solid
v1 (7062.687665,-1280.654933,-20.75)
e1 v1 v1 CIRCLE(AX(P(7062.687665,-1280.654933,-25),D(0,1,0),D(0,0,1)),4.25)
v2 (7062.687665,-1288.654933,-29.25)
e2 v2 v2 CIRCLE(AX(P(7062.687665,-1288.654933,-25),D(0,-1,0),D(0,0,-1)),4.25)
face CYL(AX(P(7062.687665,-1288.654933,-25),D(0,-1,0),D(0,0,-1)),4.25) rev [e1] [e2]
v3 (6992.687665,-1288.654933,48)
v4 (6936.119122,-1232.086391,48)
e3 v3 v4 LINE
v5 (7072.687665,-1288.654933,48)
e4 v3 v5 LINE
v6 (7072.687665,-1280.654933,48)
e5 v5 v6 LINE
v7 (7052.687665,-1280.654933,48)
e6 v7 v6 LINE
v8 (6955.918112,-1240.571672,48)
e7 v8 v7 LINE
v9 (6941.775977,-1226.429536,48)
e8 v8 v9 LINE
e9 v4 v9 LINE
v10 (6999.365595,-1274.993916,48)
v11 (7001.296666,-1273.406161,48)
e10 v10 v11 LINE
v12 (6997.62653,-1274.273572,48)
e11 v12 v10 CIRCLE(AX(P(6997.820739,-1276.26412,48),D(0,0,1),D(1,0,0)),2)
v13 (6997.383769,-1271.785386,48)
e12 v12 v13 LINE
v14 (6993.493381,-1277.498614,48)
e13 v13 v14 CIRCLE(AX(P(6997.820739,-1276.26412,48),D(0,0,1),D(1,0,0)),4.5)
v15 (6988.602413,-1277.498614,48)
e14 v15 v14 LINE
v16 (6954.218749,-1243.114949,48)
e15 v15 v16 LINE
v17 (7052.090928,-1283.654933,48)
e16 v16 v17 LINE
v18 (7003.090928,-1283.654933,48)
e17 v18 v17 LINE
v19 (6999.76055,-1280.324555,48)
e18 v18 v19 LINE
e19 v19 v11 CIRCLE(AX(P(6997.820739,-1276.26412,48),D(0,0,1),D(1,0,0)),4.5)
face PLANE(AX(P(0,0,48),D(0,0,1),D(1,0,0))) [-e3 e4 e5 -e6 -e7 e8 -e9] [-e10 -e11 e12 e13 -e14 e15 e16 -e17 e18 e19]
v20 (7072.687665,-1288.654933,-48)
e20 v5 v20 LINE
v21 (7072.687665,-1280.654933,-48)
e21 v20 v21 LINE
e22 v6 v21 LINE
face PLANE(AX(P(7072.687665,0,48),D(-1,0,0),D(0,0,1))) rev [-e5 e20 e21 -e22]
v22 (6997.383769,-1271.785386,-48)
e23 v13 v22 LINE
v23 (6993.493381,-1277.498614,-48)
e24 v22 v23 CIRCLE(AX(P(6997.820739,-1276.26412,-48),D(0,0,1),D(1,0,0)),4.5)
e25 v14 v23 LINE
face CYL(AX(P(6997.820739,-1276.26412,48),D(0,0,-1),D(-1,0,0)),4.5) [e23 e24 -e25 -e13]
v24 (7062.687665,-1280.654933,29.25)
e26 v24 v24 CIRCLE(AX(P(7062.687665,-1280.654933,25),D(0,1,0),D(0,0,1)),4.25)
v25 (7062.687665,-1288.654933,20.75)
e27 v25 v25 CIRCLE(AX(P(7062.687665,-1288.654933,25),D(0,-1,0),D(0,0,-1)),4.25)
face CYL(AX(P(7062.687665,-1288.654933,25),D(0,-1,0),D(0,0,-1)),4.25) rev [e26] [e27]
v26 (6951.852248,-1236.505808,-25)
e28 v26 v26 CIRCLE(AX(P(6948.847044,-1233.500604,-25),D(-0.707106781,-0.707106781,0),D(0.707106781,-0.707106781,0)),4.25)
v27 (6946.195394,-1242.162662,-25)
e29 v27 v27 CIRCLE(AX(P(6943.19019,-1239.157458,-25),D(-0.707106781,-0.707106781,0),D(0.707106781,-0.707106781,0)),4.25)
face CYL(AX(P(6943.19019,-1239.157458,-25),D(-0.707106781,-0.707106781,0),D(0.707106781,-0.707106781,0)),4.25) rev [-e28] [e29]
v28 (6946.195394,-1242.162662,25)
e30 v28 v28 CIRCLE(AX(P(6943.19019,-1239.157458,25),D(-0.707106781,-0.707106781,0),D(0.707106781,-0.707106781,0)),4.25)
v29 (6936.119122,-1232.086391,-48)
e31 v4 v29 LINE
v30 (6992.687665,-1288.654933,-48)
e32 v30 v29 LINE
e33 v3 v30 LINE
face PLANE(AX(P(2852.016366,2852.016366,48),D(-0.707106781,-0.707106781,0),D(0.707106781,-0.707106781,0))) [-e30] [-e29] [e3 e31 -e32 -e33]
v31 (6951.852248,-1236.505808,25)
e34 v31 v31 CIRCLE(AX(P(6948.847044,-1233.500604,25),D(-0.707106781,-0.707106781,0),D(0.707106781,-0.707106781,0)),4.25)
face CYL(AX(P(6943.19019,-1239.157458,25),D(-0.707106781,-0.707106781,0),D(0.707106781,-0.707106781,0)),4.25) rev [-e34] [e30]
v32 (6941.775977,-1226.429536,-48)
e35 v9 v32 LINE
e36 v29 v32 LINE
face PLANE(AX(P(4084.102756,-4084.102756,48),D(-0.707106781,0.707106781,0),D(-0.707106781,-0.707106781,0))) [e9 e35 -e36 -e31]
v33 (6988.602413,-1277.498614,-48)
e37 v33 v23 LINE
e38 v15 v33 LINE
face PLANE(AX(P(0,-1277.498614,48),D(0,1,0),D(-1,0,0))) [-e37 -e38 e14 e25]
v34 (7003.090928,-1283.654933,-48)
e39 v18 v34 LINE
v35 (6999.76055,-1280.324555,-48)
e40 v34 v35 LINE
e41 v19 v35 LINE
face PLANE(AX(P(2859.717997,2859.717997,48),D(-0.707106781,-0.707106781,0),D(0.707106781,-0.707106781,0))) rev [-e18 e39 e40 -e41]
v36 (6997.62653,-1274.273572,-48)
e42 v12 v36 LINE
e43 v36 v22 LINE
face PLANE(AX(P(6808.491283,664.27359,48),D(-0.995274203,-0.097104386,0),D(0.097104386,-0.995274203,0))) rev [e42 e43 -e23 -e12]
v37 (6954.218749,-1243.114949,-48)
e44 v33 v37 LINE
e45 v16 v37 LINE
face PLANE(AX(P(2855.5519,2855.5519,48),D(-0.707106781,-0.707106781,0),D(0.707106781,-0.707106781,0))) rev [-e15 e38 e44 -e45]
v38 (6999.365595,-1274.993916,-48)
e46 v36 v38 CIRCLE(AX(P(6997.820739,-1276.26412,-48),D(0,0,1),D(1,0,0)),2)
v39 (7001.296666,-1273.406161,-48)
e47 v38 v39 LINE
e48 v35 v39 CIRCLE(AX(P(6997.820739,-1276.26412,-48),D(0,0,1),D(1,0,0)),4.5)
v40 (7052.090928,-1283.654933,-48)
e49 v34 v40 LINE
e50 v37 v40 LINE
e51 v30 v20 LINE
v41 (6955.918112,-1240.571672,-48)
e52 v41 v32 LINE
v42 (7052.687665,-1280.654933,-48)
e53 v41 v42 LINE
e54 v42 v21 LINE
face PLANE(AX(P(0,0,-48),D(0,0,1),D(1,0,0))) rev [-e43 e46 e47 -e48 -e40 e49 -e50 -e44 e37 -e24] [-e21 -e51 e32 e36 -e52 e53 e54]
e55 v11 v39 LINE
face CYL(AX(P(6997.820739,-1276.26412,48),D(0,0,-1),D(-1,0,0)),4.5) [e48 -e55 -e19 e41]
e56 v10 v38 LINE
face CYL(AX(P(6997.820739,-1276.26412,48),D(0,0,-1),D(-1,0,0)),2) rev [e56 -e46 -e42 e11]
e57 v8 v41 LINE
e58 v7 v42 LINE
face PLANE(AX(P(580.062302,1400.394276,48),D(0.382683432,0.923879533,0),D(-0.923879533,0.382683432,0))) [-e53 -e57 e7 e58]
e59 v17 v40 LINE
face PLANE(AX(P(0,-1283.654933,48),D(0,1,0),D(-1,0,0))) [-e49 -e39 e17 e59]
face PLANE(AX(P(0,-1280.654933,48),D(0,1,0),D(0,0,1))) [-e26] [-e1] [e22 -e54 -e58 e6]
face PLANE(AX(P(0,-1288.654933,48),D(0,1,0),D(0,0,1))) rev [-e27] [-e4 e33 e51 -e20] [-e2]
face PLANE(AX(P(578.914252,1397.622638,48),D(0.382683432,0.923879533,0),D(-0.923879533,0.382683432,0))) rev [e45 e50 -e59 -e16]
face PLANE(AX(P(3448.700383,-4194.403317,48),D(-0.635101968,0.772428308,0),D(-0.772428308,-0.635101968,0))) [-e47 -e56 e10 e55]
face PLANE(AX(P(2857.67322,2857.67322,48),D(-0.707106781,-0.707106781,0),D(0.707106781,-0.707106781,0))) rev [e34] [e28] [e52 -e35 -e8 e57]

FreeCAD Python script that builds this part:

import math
import FreeCAD as App
import Part
import Sketcher

V = App.Vector
Q = App.Units.Quantity


def add_polygon(sketch, points):
    """Adds a closed chain of lines whose ends are joined by coincident constraints."""
    first, n = sketch.GeometryCount, len(points)
    for a, b in zip(points, points[1:] + points[:1]):
        sketch.addGeometry(Part.LineSegment(App.Vector(*a, 0), App.Vector(*b, 0)), False)
    for i in range(n):
        sketch.addConstraint(Sketcher.Constraint("Coincident", first + i, 2, first + (i + 1) % n, 1))

doc = App.newDocument("Part")
body = doc.addObject("PartDesign::Body", "Body")

# Sketch on XY plane
sketch1 = body.newObject("Sketcher::SketchObject", "Sketch")
sketch1.AttachmentSupport = (doc.getObject("XY_Plane"), [""])
sketch1.MapMode = "FlatFace"
add_polygon(sketch1, [(6936.119122, -1232.086391), (6992.687665, -1288.654933), (7072.687665, -1288.654933), (7072.687665, -1280.654933), (7052.687665, -1280.654933), (6955.918112, -1240.571672), (6941.775977, -1226.429536)])  # lines 0-6
sketch1.addGeometry(Part.LineSegment(V(7052.090928, -1283.654933, 0), V(7003.090928, -1283.654933, 0)), False)  # 7
sketch1.addGeometry(Part.LineSegment(V(7003.090928, -1283.654933, 0), V(6999.76055, -1280.324555, 0)), False)  # 8
sketch1.addGeometry(Part.ArcOfCircle(Part.Circle(V(6997.820739, -1276.26412, 0), V(0, 0, 1), 4.5), math.radians(-64.464573), math.radians(39.427548)), False)  # 9
sketch1.addGeometry(Part.LineSegment(V(7001.296666, -1273.406161, 0), V(6999.365595, -1274.993916, 0)), False)  # 10
sketch1.addGeometry(Part.ArcOfCircle(Part.Circle(V(6997.820739, -1276.26412, 0), V(0, 0, 1), 2), math.radians(95.572452), math.radians(399.427548)), False)  # 11
sketch1.addGeometry(Part.LineSegment(V(6997.62653, -1274.273572, 0), V(6997.383769, -1271.785386, 0)), False)  # 12
sketch1.addGeometry(Part.ArcOfCircle(Part.Circle(V(6997.820739, -1276.26412, 0), V(0, 0, 1), 4.5), math.radians(95.572452), math.radians(195.922205)), False)  # 13
sketch1.addGeometry(Part.LineSegment(V(6993.493381, -1277.498614, 0), V(6988.602413, -1277.498614, 0)), False)  # 14
sketch1.addGeometry(Part.LineSegment(V(6988.602413, -1277.498614, 0), V(6954.218749, -1243.114949, 0)), False)  # 15
sketch1.addGeometry(Part.LineSegment(V(6954.218749, -1243.114949, 0), V(7052.090928, -1283.654933, 0)), False)  # 16
sketch1.addConstraint(Sketcher.Constraint("Coincident", 7, 2, 8, 1))
sketch1.addConstraint(Sketcher.Constraint("Coincident", 8, 2, 9, 1))
sketch1.addConstraint(Sketcher.Constraint("Coincident", 9, 2, 10, 1))
sketch1.addConstraint(Sketcher.Constraint("Coincident", 10, 2, 11, 2))
sketch1.addConstraint(Sketcher.Constraint("Coincident", 11, 1, 12, 1))
sketch1.addConstraint(Sketcher.Constraint("Coincident", 12, 2, 13, 1))
sketch1.addConstraint(Sketcher.Constraint("Coincident", 13, 2, 14, 1))
sketch1.addConstraint(Sketcher.Constraint("Coincident", 14, 2, 15, 1))
sketch1.addConstraint(Sketcher.Constraint("Coincident", 15, 2, 16, 1))
sketch1.addConstraint(Sketcher.Constraint("Coincident", 16, 2, 7, 1))
sketch1.addConstraint(Sketcher.Constraint("Horizontal", 1))
sketch1.addConstraint(Sketcher.Constraint("Vertical", 2))
sketch1.addConstraint(Sketcher.Constraint("Horizontal", 3))
sketch1.addConstraint(Sketcher.Constraint("Horizontal", 7))
sketch1.addConstraint(Sketcher.Constraint("Horizontal", 14))
sketch1.addConstraint(Sketcher.Constraint("Coincident", 11, 3, 9, 3))
sketch1.addConstraint(Sketcher.Constraint("Coincident", 13, 3, 9, 3))
sketch1.addConstraint(Sketcher.Constraint("Equal", 9, 13))
sketch1.addConstraint(Sketcher.Constraint("Parallel", 0, 5))
sketch1.addConstraint(Sketcher.Constraint("Perpendicular", 5, 6))
sketch1.addConstraint(Sketcher.Constraint("Perpendicular", 6, 8))
sketch1.addConstraint(Sketcher.Constraint("Parallel", 8, 15))
sketch1.addConstraint(Sketcher.Constraint("Parallel", 4, 16))
sketch1.addConstraint(Sketcher.Constraint("Radius", 11, Q("2 mm")))
sketch1.addConstraint(Sketcher.Constraint("Radius", 9, Q("4.5 mm")))
sketch1.addConstraint(Sketcher.Constraint("DistanceX", 1, 1, 1, 2, Q("80 mm")))
sketch1.addConstraint(Sketcher.Constraint("DistanceX", 3, 2, 3, 1, Q("20 mm")))
sketch1.addConstraint(Sketcher.Constraint("DistanceX", 7, 2, 7, 1, Q("49 mm")))
sketch1.addConstraint(Sketcher.Constraint("DistanceY", 2, 1, 2, 2, Q("8 mm")))
sketch1.addConstraint(Sketcher.Constraint("Angle", 0, Q("-45 deg")))
sketch1.addConstraint(Sketcher.Constraint("Distance", 0, Q("80 mm")))
sketch1.addConstraint(Sketcher.Constraint("Distance", 5, Q("20 mm")))
sketch1.addConstraint(Sketcher.Constraint("Distance", 6, Q("8 mm")))
sketch1.addConstraint(Sketcher.Constraint("DistanceY", 0, 2, 7, 2, Q("5 mm")))
sketch1.addConstraint(Sketcher.Constraint("DistanceX", 14, 2, 14, 1, Q("4.890968 mm")))
sketch1.addConstraint(Sketcher.Constraint("DistanceX", -1, 1, 9, 3, Q("6997.820739 mm")))
sketch1.addConstraint(Sketcher.Constraint("DistanceY", 9, 3, -1, 1, Q("1276.26412 mm")))
sketch1.addConstraint(Sketcher.Constraint("DistanceY", 6, 2, -1, 1, Q("1232.086391 mm")))
sketch1.addConstraint(Sketcher.Constraint("DistanceX", -1, 1, 8, 2, Q("6999.76055 mm")))
sketch1.addConstraint(Sketcher.Constraint("DistanceY", 9, 2, -1, 1, Q("1273.406161 mm")))
sketch1.addConstraint(Sketcher.Constraint("DistanceX", -1, 1, 11, 1, Q("6997.62653 mm")))
sketch1.addConstraint(Sketcher.Constraint("DistanceX", -1, 1, 12, 2, Q("6997.383769 mm")))
sketch1.addConstraint(Sketcher.Constraint("DistanceX", -1, 1, 13, 2, Q("6993.493381 mm")))
sketch1.addConstraint(Sketcher.Constraint("DistanceX", 10, 2, 9, 2, Q("1.931071 mm")))
sketch1.addConstraint(Sketcher.Constraint("DistanceX", -1, 1, 0, 2, Q("6992.687665 mm")))
pad1 = body.newObject("PartDesign::Pad", "Pad")
pad1.Profile = sketch1
pad1.Length = 96
pad1.Midplane = True

# Sketch on an angled plane
sketch2 = body.newObject("Sketcher::SketchObject", "Sketch001")
sketch2.Placement = App.Placement(V(2852.016366, 2852.016366, 0), App.Rotation(V(0.707106781, -0.707106781, 0), V(0, 0, 0.999999999), V(-0.707106781, -0.707106781, 0), "ZXY"))
sketch2.addGeometry(Part.Circle(V(5785.8, -25, 0), V(0, 0, 1), 4.2), False)
sketch2.addGeometry(Part.Circle(V(5785.8, 25, 0), V(0, 0, 1), 4.2), False)
sketch2.addConstraint(Sketcher.Constraint("Equal", 0, 1))
sketch2.addConstraint(Sketcher.Constraint("Symmetric", 0, 3, 1, 3, -1))
sketch2.addConstraint(Sketcher.Constraint("Diameter", 0, Q("8.5 mm")))
sketch2.addConstraint(Sketcher.Constraint("DistanceY", 0, 3, -1, 1, Q("25 mm")))
sketch2.addConstraint(Sketcher.Constraint("DistanceX", -1, 1, 0, 3, Q("5785.793505 mm")))
doc.recompute()
hole = body.newObject("PartDesign::Hole", "Hole")
hole.Profile = sketch2
hole.ThreadType = "None"
hole.Diameter = 8.5
hole.DepthType = "ThroughAll"
doc.recompute()

datumplane = body.newObject("PartDesign::Plane", "DatumPlane")
datumplane.Placement = App.Placement(V(6424.240592, -2661.007577, 0), App.Rotation(V(0.382683432, 0.923879533, 0), V(0, 0, -1), V(-0.923879533, 0.382683432, 0), "ZXY"))
mirrored = body.newObject("PartDesign::Mirrored", "Mirrored")
mirrored.Originals = [hole]
mirrored.MirrorPlane = (datumplane, [""])
body.Tip = mirrored

doc.recompute()
